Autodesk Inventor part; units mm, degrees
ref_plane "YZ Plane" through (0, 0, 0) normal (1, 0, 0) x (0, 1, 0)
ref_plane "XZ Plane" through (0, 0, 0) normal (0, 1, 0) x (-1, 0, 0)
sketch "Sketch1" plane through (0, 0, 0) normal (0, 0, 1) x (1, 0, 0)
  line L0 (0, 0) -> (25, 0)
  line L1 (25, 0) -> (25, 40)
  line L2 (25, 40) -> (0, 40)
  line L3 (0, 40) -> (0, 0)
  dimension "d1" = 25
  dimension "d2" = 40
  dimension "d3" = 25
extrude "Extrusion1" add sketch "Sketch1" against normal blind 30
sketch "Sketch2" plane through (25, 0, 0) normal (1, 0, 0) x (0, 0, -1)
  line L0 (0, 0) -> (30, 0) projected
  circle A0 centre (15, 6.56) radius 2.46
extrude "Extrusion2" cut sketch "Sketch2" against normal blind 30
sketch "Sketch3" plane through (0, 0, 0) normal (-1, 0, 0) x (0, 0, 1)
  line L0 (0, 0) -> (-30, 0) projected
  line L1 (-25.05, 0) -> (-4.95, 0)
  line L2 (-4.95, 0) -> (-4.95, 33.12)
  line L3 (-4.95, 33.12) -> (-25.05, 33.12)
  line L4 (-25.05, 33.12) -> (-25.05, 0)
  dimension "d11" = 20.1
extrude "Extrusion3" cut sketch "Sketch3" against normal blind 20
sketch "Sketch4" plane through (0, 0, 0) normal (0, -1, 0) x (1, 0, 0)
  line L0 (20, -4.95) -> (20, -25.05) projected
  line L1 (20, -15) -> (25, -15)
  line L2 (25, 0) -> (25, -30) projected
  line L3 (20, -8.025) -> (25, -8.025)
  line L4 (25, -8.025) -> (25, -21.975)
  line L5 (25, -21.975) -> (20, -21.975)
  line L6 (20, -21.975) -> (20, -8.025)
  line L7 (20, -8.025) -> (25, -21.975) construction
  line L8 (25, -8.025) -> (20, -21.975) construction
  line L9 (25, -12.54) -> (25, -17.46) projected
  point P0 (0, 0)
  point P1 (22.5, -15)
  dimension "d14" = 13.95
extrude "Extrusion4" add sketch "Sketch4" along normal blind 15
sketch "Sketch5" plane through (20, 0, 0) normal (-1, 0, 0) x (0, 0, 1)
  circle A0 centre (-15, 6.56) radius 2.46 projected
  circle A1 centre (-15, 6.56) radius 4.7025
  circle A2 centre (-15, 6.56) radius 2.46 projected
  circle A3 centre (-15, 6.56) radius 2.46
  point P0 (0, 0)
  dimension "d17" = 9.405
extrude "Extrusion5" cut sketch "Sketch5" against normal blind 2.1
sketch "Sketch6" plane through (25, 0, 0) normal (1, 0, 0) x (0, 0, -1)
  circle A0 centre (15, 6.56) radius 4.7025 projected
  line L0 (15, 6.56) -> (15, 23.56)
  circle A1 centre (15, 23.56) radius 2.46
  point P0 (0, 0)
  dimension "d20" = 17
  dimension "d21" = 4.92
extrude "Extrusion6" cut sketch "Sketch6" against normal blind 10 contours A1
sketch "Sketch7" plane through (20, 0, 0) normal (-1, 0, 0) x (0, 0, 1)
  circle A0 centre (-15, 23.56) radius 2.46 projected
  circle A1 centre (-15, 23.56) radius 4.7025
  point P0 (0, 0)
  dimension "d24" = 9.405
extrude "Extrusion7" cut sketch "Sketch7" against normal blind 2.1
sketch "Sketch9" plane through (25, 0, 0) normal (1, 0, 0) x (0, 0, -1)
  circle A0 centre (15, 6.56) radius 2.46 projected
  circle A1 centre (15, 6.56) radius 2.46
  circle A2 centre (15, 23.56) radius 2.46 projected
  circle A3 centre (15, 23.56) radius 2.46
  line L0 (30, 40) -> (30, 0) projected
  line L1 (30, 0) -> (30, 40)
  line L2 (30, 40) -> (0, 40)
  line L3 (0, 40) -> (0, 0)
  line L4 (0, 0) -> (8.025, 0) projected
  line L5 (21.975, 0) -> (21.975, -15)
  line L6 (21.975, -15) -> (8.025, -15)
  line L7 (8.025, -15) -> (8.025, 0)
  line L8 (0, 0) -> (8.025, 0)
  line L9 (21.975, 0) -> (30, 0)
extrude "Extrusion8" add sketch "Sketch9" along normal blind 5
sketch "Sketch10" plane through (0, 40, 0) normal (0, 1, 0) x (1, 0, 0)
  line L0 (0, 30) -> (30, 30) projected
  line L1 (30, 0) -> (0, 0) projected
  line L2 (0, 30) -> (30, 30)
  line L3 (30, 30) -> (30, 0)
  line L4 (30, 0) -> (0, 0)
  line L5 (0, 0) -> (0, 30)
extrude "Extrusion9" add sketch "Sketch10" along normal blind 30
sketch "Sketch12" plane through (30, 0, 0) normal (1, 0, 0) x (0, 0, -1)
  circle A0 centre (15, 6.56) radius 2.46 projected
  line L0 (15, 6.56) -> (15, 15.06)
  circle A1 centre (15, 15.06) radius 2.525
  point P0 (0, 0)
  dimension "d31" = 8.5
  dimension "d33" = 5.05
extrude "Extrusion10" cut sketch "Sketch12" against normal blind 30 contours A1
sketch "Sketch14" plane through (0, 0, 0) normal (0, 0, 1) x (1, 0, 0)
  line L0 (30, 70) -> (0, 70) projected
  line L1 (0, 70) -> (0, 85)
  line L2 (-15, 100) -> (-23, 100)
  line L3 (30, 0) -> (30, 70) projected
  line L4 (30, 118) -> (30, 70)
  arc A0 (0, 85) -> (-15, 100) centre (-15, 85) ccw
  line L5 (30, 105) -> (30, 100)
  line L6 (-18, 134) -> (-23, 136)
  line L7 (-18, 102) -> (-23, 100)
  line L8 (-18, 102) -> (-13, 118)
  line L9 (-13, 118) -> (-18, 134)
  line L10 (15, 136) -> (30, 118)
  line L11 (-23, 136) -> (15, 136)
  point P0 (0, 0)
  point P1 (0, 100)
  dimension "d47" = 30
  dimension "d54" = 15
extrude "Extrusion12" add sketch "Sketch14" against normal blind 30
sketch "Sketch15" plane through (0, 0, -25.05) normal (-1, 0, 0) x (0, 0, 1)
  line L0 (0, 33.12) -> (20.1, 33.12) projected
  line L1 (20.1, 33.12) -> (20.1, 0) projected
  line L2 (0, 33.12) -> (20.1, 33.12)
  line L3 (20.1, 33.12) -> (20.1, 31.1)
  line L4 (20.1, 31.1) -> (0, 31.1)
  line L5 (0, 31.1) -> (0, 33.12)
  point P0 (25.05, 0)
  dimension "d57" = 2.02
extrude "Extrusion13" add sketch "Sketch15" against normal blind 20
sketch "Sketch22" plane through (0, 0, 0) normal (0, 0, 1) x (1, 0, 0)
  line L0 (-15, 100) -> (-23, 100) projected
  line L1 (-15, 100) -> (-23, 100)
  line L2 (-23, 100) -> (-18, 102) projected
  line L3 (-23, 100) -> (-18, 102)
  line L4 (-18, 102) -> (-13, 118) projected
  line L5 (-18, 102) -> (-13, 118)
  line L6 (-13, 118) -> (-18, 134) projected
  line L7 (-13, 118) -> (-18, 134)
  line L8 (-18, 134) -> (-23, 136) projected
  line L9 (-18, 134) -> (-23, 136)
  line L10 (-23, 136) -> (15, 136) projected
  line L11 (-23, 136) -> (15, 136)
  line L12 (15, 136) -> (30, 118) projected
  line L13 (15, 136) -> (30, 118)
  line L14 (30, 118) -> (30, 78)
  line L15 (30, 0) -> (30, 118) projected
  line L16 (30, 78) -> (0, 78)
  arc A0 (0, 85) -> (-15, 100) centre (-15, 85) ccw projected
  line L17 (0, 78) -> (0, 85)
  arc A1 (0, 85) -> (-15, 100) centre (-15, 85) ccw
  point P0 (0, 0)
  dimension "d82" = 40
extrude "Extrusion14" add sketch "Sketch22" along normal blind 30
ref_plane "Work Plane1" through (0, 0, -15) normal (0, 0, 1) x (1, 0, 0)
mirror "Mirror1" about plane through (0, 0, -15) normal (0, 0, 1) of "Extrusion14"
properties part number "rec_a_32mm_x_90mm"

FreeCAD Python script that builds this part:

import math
import FreeCAD as App
import Part
import Sketcher
Q = App.Units.Quantity

doc = App.newDocument("Part")
body = doc.addObject("PartDesign::Body", "Body")

sketch1 = body.newObject("Sketcher::SketchObject", "Sketch")
sketch1.AttachmentSupport = (doc.getObject("XY_Plane"), [""])
sketch1.MapMode = "FlatFace"
sketch1.addGeometry([
    Part.LineSegment(App.Vector(0, 40, 0), App.Vector(0, 0, 0)),
    Part.LineSegment(App.Vector(0, 0, 0), App.Vector(25, 0, 0)),
    Part.LineSegment(App.Vector(25, 0, 0), App.Vector(25, 40, 0)),
    Part.LineSegment(App.Vector(25, 40, 0), App.Vector(0, 40, 0)),
], False)
sketch1.addConstraint([
    Sketcher.Constraint("Coincident", 0, 2, 1, 1),
    Sketcher.Constraint("Coincident", 1, 2, 2, 1),
    Sketcher.Constraint("Coincident", 2, 2, 3, 1),
    Sketcher.Constraint("Coincident", 3, 2, 0, 1),
    Sketcher.Constraint("Vertical", 0),
    Sketcher.Constraint("Horizontal", 1),
    Sketcher.Constraint("Vertical", 2),
    Sketcher.Constraint("Horizontal", 3),
    Sketcher.Constraint("Coincident", 0, 2, -1, 1),
    Sketcher.Constraint("DistanceX", 1, 1, 1, 2, Q("25 mm")),
    Sketcher.Constraint("DistanceY", 0, 2, 0, 1, Q("40 mm")),
])
pad1 = body.newObject("PartDesign::Pad", "Pad")
pad1.Profile = sketch1
pad1.Length = 30
pad1.Reversed = True

sketch2 = body.newObject("Sketcher::SketchObject", "Sketch001")
sketch2.AttachmentSupport = (doc.getObject("YZ_Plane"), [""])
sketch2.MapMode = "FlatFace"
sketch2.AttachmentOffset = App.Placement(App.Vector(0, 0, 25), App.Rotation())
sketch2.addGeometry(Part.Circle(App.Vector(6.6, -15, 0), App.Vector(0, 0, 1), 2.5), False)
sketch2.addConstraint([
    Sketcher.Constraint("Diameter", 0, Q("4.92 mm")),
    Sketcher.Constraint("DistanceY", 0, 3, -1, 1, Q("15 mm")),
    Sketcher.Constraint("DistanceX", -1, 1, 0, 3, Q("6.56 mm")),
])
pocket1 = body.newObject("PartDesign::Pocket", "Pocket")
pocket1.Profile = sketch2
pocket1.Length = 30

sketch3 = body.newObject("Sketcher::SketchObject", "Sketch002")
sketch3.AttachmentSupport = (doc.getObject("YZ_Plane"), [""])
sketch3.MapMode = "FlatFace"
sketch3.addGeometry([
    Part.LineSegment(App.Vector(0, -25, 0), App.Vector(0, -5, 0)),
    Part.LineSegment(App.Vector(0, -5, 0), App.Vector(33, -5, 0)),
    Part.LineSegment(App.Vector(33, -5, 0), App.Vector(33, -25, 0)),
    Part.LineSegment(App.Vector(33, -25, 0), App.Vector(0, -25, 0)),
], False)
sketch3.addConstraint([
    Sketcher.Constraint("Coincident", 0, 2, 1, 1),
    Sketcher.Constraint("Coincident", 1, 2, 2, 1),
    Sketcher.Constraint("Coincident", 2, 2, 3, 1),
    Sketcher.Constraint("Coincident", 3, 2, 0, 1),
    Sketcher.Constraint("Vertical", 0),
    Sketcher.Constraint("Horizontal", 1),
    Sketcher.Constraint("Vertical", 2),
    Sketcher.Constraint("Horizontal", 3),
    Sketcher.Constraint("PointOnObject", 0, 2, -2),
    Sketcher.Constraint("DistanceY", 0, 1, 0, 2, Q("20.1 mm")),
    Sketcher.Constraint("DistanceX", 1, 1, 1, 2, Q("33.12 mm")),
    Sketcher.Constraint("DistanceY", 0, 2, -1, 1, Q("4.95 mm")),
])
pocket2 = body.newObject("PartDesign::Pocket", "Pocket001")
pocket2.Profile = sketch3
pocket2.Length = 20
pocket2.Reversed = True

sketch4 = body.newObject("Sketcher::SketchObject", "Sketch003")
sketch4.AttachmentSupport = (doc.getObject("XZ_Plane"), [""])
sketch4.MapMode = "FlatFace"
sketch4.addGeometry([
    Part.LineSegment(App.Vector(25, -8, 0), App.Vector(20, -8, 0)),
    Part.LineSegment(App.Vector(20, -8, 0), App.Vector(20, -22, 0)),
    Part.LineSegment(App.Vector(20, -22, 0), App.Vector(25, -22, 0)),
    Part.LineSegment(App.Vector(25, -22, 0), App.Vector(25, -8, 0)),
], False)
sketch4.addConstraint([
    Sketcher.Constraint("Coincident", 0, 2, 1, 1),
    Sketcher.Constraint("Coincident", 1, 2, 2, 1),
    Sketcher.Constraint("Coincident", 2, 2, 3, 1),
    Sketcher.Constraint("Coincident", 3, 2, 0, 1),
    Sketcher.Constraint("Horizontal", 0),
    Sketcher.Constraint("Vertical", 1),
    Sketcher.Constraint("Horizontal", 2),
    Sketcher.Constraint("Vertical", 3),
    Sketcher.Constraint("DistanceY", 1, 2, 1, 1, Q("13.95 mm")),
    Sketcher.Constraint("DistanceX", 0, 2, 0, 1, Q("5 mm")),
    Sketcher.Constraint("DistanceX", -1, 1, 0, 2, Q("20 mm")),
    Sketcher.Constraint("DistanceY", 0, 2, -1, 1, Q("8.025 mm")),
])
pad2 = body.newObject("PartDesign::Pad", "Pad001")
pad2.Profile = sketch4
pad2.Length = 15

sketch5 = body.newObject("Sketcher::SketchObject", "Sketch004")
sketch5.AttachmentSupport = (doc.getObject("YZ_Plane"), [""])
sketch5.MapMode = "FlatFace"
sketch5.AttachmentOffset = App.Placement(App.Vector(0, 0, 20), App.Rotation())
sketch5.addGeometry([
    Part.Circle(App.Vector(6.6, -15, 0), App.Vector(0, 0, 1), 4.7),
    Part.Circle(App.Vector(6.6, -15, 0), App.Vector(0, 0, 1), 2.5),
], False)
sketch5.addConstraint([
    Sketcher.Constraint("Coincident", 1, 3, 0, 3),
    Sketcher.Constraint("Diameter", 0, Q("9.405 mm")),
    Sketcher.Constraint("Diameter", 1, Q("4.92 mm")),
    Sketcher.Constraint("DistanceY", 0, 3, -1, 1, Q("15 mm")),
    Sketcher.Constraint("DistanceX", -1, 1, 0, 3, Q("6.56 mm")),
])
pocket3 = body.newObject("PartDesign::Pocket", "Pocket002")
pocket3.Profile = sketch5
pocket3.Length = 2.1
pocket3.Reversed = True

sketch6 = body.newObject("Sketcher::SketchObject", "Sketch005")
sketch6.AttachmentSupport = (doc.getObject("YZ_Plane"), [""])
sketch6.MapMode = "FlatFace"
sketch6.AttachmentOffset = App.Placement(App.Vector(0, 0, 25), App.Rotation())
sketch6.addGeometry(Part.Circle(App.Vector(23.6, -15, 0), App.Vector(0, 0, 1), 2.5), False)
sketch6.addConstraint([
    Sketcher.Constraint("Diameter", 0, Q("4.92 mm")),
    Sketcher.Constraint("DistanceY", 0, 3, -1, 1, Q("15 mm")),
    Sketcher.Constraint("DistanceX", -1, 1, 0, 3, Q("23.56 mm")),
])
pocket4 = body.newObject("PartDesign::Pocket", "Pocket003")
pocket4.Profile = sketch6
pocket4.Length = 10

sketch7 = body.newObject("Sketcher::SketchObject", "Sketch006")
sketch7.AttachmentSupport = (doc.getObject("YZ_Plane"), [""])
sketch7.MapMode = "FlatFace"
sketch7.AttachmentOffset = App.Placement(App.Vector(0, 0, 20), App.Rotation())
sketch7.addGeometry([
    Part.Circle(App.Vector(23.6, -15, 0), App.Vector(0, 0, 1), 4.7),
    Part.Circle(App.Vector(23.6, -15, 0), App.Vector(0, 0, 1), 2.5),
], False)
sketch7.addConstraint([
    Sketcher.Constraint("Coincident", 1, 3, 0, 3),
    Sketcher.Constraint("Diameter", 0, Q("9.405 mm")),
    Sketcher.Constraint("Diameter", 1, Q("4.92 mm")),
    Sketcher.Constraint("DistanceY", 0, 3, -1, 1, Q("15 mm")),
    Sketcher.Constraint("DistanceX", -1, 1, 0, 3, Q("23.56 mm")),
])
pocket5 = body.newObject("PartDesign::Pocket", "Pocket004")
pocket5.Profile = sketch7
pocket5.Length = 2.1
pocket5.Reversed = True

sketch8 = body.newObject("Sketcher::SketchObject", "Sketch007")
sketch8.AttachmentSupport = (doc.getObject("YZ_Plane"), [""])
sketch8.MapMode = "FlatFace"
sketch8.AttachmentOffset = App.Placement(App.Vector(0, 0, 25), App.Rotation())
sketch8.addGeometry([
    Part.LineSegment(App.Vector(0, -30, 0), App.Vector(40, -30, 0)),
    Part.LineSegment(App.Vector(40, -30, 0), App.Vector(40, 0, 0)),
    Part.LineSegment(App.Vector(40, 0, 0), App.Vector(0, 0, 0)),
    Part.LineSegment(App.Vector(0, 0, 0), App.Vector(0, -8, 0)),
    Part.LineSegment(App.Vector(0, -8, 0), App.Vector(-15, -8, 0)),
    Part.LineSegment(App.Vector(-15, -8, 0), App.Vector(-15, -22, 0)),
    Part.LineSegment(App.Vector(-15, -22, 0), App.Vector(0, -22, 0)),
    Part.LineSegment(App.Vector(0, -22, 0), App.Vector(0, -30, 0)),
    Part.Circle(App.Vector(6.6, -15, 0), App.Vector(0, 0, 1), 2.5),
    Part.Circle(App.Vector(23.6, -15, 0), App.Vector(0, 0, 1), 2.5),
], False)
sketch8.addConstraint([
    Sketcher.Constraint("Coincident", 0, 2, 1, 1),
    Sketcher.Constraint("Coincident", 1, 2, 2, 1),
    Sketcher.Constraint("Coincident", 2, 2, 3, 1),
    Sketcher.Constraint("Coincident", 3, 2, 4, 1),
    Sketcher.Constraint("Coincident", 4, 2, 5, 1),
    Sketcher.Constraint("Coincident", 5, 2, 6, 1),
    Sketcher.Constraint("Coincident", 6, 2, 7, 1),
    Sketcher.Constraint("Coincident", 7, 2, 0, 1),
    Sketcher.Constraint("Horizontal", 0),
    Sketcher.Constraint("Vertical", 1),
    Sketcher.Constraint("Horizontal", 2),
    Sketcher.Constraint("Vertical", 3),
    Sketcher.Constraint("Horizontal", 4),
    Sketcher.Constraint("Vertical", 5),
    Sketcher.Constraint("Horizontal", 6),
    Sketcher.Constraint("Vertical", 7),
    Sketcher.Constraint("Coincident", 2, 2, -1, 1),
    Sketcher.Constraint("Equal", 8, 9),
    Sketcher.Constraint("PointOnObject", 6, 2, -2),
    Sketcher.Constraint("Horizontal", 8, 3, 9, 3),
    Sketcher.Constraint("Equal", 3, 7),
    Sketcher.Constraint("Diameter", 8, Q("4.92 mm")),
    Sketcher.Constraint("DistanceX", 0, 1, 0, 2, Q("40 mm")),
    Sketcher.Constraint("DistanceX", 4, 2, 4, 1, Q("15 mm")),
    Sketcher.Constraint("DistanceY", 1, 1, 1, 2, Q("30 mm")),
    Sketcher.Constraint("DistanceY", 8, 3, -1, 1, Q("15 mm")),
    Sketcher.Constraint("DistanceX", 8, 3, 9, 3, Q("17 mm")),
    Sketcher.Constraint("DistanceY", 5, 2, 5, 1, Q("13.95 mm")),
    Sketcher.Constraint("DistanceX", -1, 1, 8, 3, Q("6.56 mm")),
])
pad3 = body.newObject("PartDesign::Pad", "Pad002")
pad3.Profile = sketch8
pad3.Length = 5

sketch9 = body.newObject("Sketcher::SketchObject", "Sketch008")
sketch9.AttachmentSupport = (doc.getObject("XZ_Plane"), [""])
sketch9.MapMode = "FlatFace"
sketch9.AttachmentOffset = App.Placement(App.Vector(0, 0, -40), App.Rotation())
sketch9.addGeometry([
    Part.LineSegment(App.Vector(30, -30, 0), App.Vector(0, -30, 0)),
    Part.LineSegment(App.Vector(0, -30, 0), App.Vector(0, 0, 0)),
    Part.LineSegment(App.Vector(0, 0, 0), App.Vector(30, 0, 0)),
    Part.LineSegment(App.Vector(30, 0, 0), App.Vector(30, -30, 0)),
], False)
sketch9.addConstraint([
    Sketcher.Constraint("Coincident", 0, 2, 1, 1),
    Sketcher.Constraint("Coincident", 1, 2, 2, 1),
    Sketcher.Constraint("Coincident", 2, 2, 3, 1),
    Sketcher.Constraint("Coincident", 3, 2, 0, 1),
    Sketcher.Constraint("Horizontal", 0),
    Sketcher.Constraint("Vertical", 1),
    Sketcher.Constraint("Horizontal", 2),
    Sketcher.Constraint("Vertical", 3),
    Sketcher.Constraint("Coincident", 1, 2, -1, 1),
    Sketcher.Constraint("Equal", 2, 1),
    Sketcher.Constraint("DistanceX", 0, 2, 0, 1, Q("30 mm")),
])
pad4 = body.newObject("PartDesign::Pad", "Pad003")
pad4.Profile = sketch9
pad4.Length = 30
pad4.Reversed = True

sketch10 = body.newObject("Sketcher::SketchObject", "Sketch009")
sketch10.AttachmentSupport = (doc.getObject("YZ_Plane"), [""])
sketch10.MapMode = "FlatFace"
sketch10.AttachmentOffset = App.Placement(App.Vector(0, 0, 30), App.Rotation())
sketch10.addGeometry(Part.Circle(App.Vector(15.1, -15, 0), App.Vector(0, 0, 1), 2.5), False)
sketch10.addConstraint([
    Sketcher.Constraint("Diameter", 0, Q("5.05 mm")),
    Sketcher.Constraint("DistanceY", 0, 3, -1, 1, Q("15 mm")),
    Sketcher.Constraint("DistanceX", -1, 1, 0, 3, Q("15.06 mm")),
])
pocket6 = body.newObject("PartDesign::Pocket", "Pocket005")
pocket6.Profile = sketch10
pocket6.Length = 30

sketch11 = body.newObject("Sketcher::SketchObject", "Sketch010")
sketch11.AttachmentSupport = (doc.getObject("XY_Plane"), [""])
sketch11.MapMode = "FlatFace"
sketch11.addGeometry([
    Part.LineSegment(App.Vector(0, 70, 0), App.Vector(30, 70, 0)),
    Part.LineSegment(App.Vector(30, 70, 0), App.Vector(30, 118, 0)),
    Part.LineSegment(App.Vector(30, 118, 0), App.Vector(15, 136, 0)),
    Part.LineSegment(App.Vector(15, 136, 0), App.Vector(-23, 136, 0)),
    Part.LineSegment(App.Vector(-23, 136, 0), App.Vector(-18, 134, 0)),
    Part.LineSegment(App.Vector(-18, 134, 0), App.Vector(-13, 118, 0)),
    Part.LineSegment(App.Vector(-13, 118, 0), App.Vector(-18, 102, 0)),
    Part.LineSegment(App.Vector(-18, 102, 0), App.Vector(-23, 100, 0)),
    Part.LineSegment(App.Vector(-23, 100, 0), App.Vector(-15, 100, 0)),
    Part.ArcOfCircle(Part.Circle(App.Vector(-15, 85, 0), App.Vector(0, 0, 1), 15), math.radians(0), math.radians(90)),
    Part.LineSegment(App.Vector(0, 85, 0), App.Vector(0, 70, 0)),
], False)
sketch11.addConstraint([
    Sketcher.Constraint("Coincident", 0, 2, 1, 1),
    Sketcher.Constraint("Coincident", 1, 2, 2, 1),
    Sketcher.Constraint("Coincident", 2, 2, 3, 1),
    Sketcher.Constraint("Coincident", 3, 2, 4, 1),
    Sketcher.Constraint("Coincident", 4, 2, 5, 1),
    Sketcher.Constraint("Coincident", 5, 2, 6, 1),
    Sketcher.Constraint("Coincident", 6, 2, 7, 1),
    Sketcher.Constraint("Coincident", 7, 2, 8, 1),
    Sketcher.Constraint("Tangent", 8, 2, 9, 2),
    Sketcher.Constraint("Tangent", 9, 1, 10, 1),
    Sketcher.Constraint("Coincident", 10, 2, 0, 1),
    Sketcher.Constraint("Horizontal", 0),
    Sketcher.Constraint("Vertical", 1),
    Sketcher.Constraint("Horizontal", 3),
    Sketcher.Constraint("Horizontal", 8),
    Sketcher.Constraint("Vertical", 10),
    Sketcher.Constraint("PointOnObject", 9, 1, -2),
    Sketcher.Constraint("Horizontal", 1, 2, 5, 2),
    Sketcher.Constraint("Vertical", 4, 2, 6, 2),
    Sketcher.Constraint("Vertical", 3, 2, 7, 2),
    Sketcher.Constraint("Equal", 5, 6),
    Sketcher.Constraint("Equal", 4, 7),
    Sketcher.Constraint("Radius", 9, Q("15 mm")),
    Sketcher.Constraint("DistanceX", 0, 1, 0, 2, Q("30 mm")),
    Sketcher.Constraint("DistanceY", 10, 2, 10, 1, Q("15 mm")),
    Sketcher.Constraint("DistanceX", -1, 1, 2, 2, Q("15 mm")),
    Sketcher.Constraint("DistanceX", 3, 2, 3, 1, Q("38 mm")),
    Sketcher.Constraint("DistanceY", 1, 1, 1, 2, Q("48 mm")),
    Sketcher.Constraint("DistanceY", -1, 1, 9, 3, Q("85 mm")),
    Sketcher.Constraint("DistanceX", 4, 2, -1, 1, Q("18 mm")),
    Sketcher.Constraint("DistanceY", -1, 1, 4, 2, Q("134 mm")),
    Sketcher.Constraint("DistanceX", 5, 2, -1, 1, Q("13 mm")),
])
pad5 = body.newObject("PartDesign::Pad", "Pad004")
pad5.Profile = sketch11
pad5.Length = 30
pad5.Reversed = True

sketch12 = body.newObject("Sketcher::SketchObject", "Sketch011")
sketch12.AttachmentSupport = (doc.getObject("YZ_Plane"), [""])
sketch12.MapMode = "FlatFace"
sketch12.addGeometry([
    Part.LineSegment(App.Vector(33.1, -5, 0), App.Vector(33.1, -25.1, 0)),
    Part.LineSegment(App.Vector(33.1, -25.1, 0), App.Vector(31.1, -25.1, 0)),
    Part.LineSegment(App.Vector(31.1, -25.1, 0), App.Vector(31.1, -5, 0)),
    Part.LineSegment(App.Vector(31.1, -5, 0), App.Vector(33.1, -5, 0)),
], False)
sketch12.addConstraint([
    Sketcher.Constraint("Coincident", 0, 2, 1, 1),
    Sketcher.Constraint("Coincident", 1, 2, 2, 1),
    Sketcher.Constraint("Coincident", 2, 2, 3, 1),
    Sketcher.Constraint("Coincident", 3, 2, 0, 1),
    Sketcher.Constraint("Vertical", 0),
    Sketcher.Constraint("Horizontal", 1),
    Sketcher.Constraint("Vertical", 2),
    Sketcher.Constraint("Horizontal", 3),
    Sketcher.Constraint("DistanceX", 1, 2, 1, 1, Q("2.02 mm")),
    Sketcher.Constraint("DistanceY", 0, 2, 0, 1, Q("20.1 mm")),
    Sketcher.Constraint("DistanceX", -1, 1, 1, 2, Q("31.1 mm")),
    Sketcher.Constraint("DistanceY", 0, 2, -1, 1, Q("25.05 mm")),
])
pad6 = body.newObject("PartDesign::Pad", "Pad005")
pad6.Profile = sketch12
pad6.Length = 20

sketch13 = body.newObject("Sketcher::SketchObject", "Sketch012")
sketch13.AttachmentSupport = (doc.getObject("XY_Plane"), [""])
sketch13.MapMode = "FlatFace"
sketch13.addGeometry([
    Part.LineSegment(App.Vector(-23, 100, 0), App.Vector(-15, 100, 0)),
    Part.ArcOfCircle(Part.Circle(App.Vector(-15, 85, 0), App.Vector(0, 0, 1), 15), math.radians(0), math.radians(90)),
    Part.LineSegment(App.Vector(0, 85, 0), App.Vector(0, 78, 0)),
    Part.LineSegment(App.Vector(0, 78, 0), App.Vector(30, 78, 0)),
    Part.LineSegment(App.Vector(30, 78, 0), App.Vector(30, 118, 0)),
    Part.LineSegment(App.Vector(30, 118, 0), App.Vector(15, 136, 0)),
    Part.LineSegment(App.Vector(15, 136, 0), App.Vector(-23, 136, 0)),
    Part.LineSegment(App.Vector(-23, 136, 0), App.Vector(-18, 134, 0)),
    Part.LineSegment(App.Vector(-18, 134, 0), App.Vector(-13, 118, 0)),
    Part.LineSegment(App.Vector(-13, 118, 0), App.Vector(-18, 102, 0)),
    Part.LineSegment(App.Vector(-18, 102, 0), App.Vector(-23, 100, 0)),
], False)
sketch13.addConstraint([
    Sketcher.Constraint("Tangent", 0, 2, 1, 2),
    Sketcher.Constraint("Tangent", 1, 1, 2, 1),
    Sketcher.Constraint("Coincident", 2, 2, 3, 1),
    Sketcher.Constraint("Coincident", 3, 2, 4, 1),
    Sketcher.Constraint("Coincident", 4, 2, 5, 1),
    Sketcher.Constraint("Coincident", 5, 2, 6, 1),
    Sketcher.Constraint("Coincident", 6, 2, 7, 1),
    Sketcher.Constraint("Coincident", 7, 2, 8, 1),
    Sketcher.Constraint("Coincident", 8, 2, 9, 1),
    Sketcher.Constraint("Coincident", 9, 2, 10, 1),
    Sketcher.Constraint("Coincident", 10, 2, 0, 1),
    Sketcher.Constraint("Horizontal", 0),
    Sketcher.Constraint("Vertical", 2),
    Sketcher.Constraint("Horizontal", 3),
    Sketcher.Constraint("Vertical", 4),
    Sketcher.Constraint("Horizontal", 6),
    Sketcher.Constraint("PointOnObject", 1, 1, -2),
    Sketcher.Constraint("Horizontal", 4, 2, 8, 2),
    Sketcher.Constraint("Vertical", 7, 2, 9, 2),
    Sketcher.Constraint("Vertical", 6, 2, 10, 2),
    Sketcher.Constraint("Equal", 8, 9),
    Sketcher.Constraint("Equal", 7, 10),
    Sketcher.Constraint("DistanceY", 4, 1, 4, 2, Q("40 mm")),
    Sketcher.Constraint("Radius", 1, Q("15 mm")),
    Sketcher.Constraint("DistanceX", 0, 1, 0, 2, Q("8 mm")),
    Sketcher.Constraint("DistanceX", 3, 1, 3, 2, Q("30 mm")),
    Sketcher.Constraint("DistanceX", 6, 2, 6, 1, Q("38 mm")),
    Sketcher.Constraint("DistanceY", 2, 2, 2, 1, Q("7 mm")),
    Sketcher.Constraint("DistanceY", -1, 1, 1, 3, Q("85 mm")),
    Sketcher.Constraint("DistanceX", 7, 2, -1, 1, Q("18 mm")),
    Sketcher.Constraint("DistanceY", -1, 1, 7, 2, Q("134 mm")),
    Sketcher.Constraint("DistanceX", 8, 2, -1, 1, Q("13 mm")),
])
pad7 = body.newObject("PartDesign::Pad", "Pad006")
pad7.Profile = sketch13
pad7.Length = 30
doc.recompute()

datumplane = body.newObject("PartDesign::Plane", "DatumPlane")
datumplane.AttachmentSupport = (doc.getObject("XY_Plane"), [""])
datumplane.MapMode = "FlatFace"
datumplane.AttachmentOffset = App.Placement(App.Vector(0, 0, -15), App.Rotation())
mirrored = body.newObject("PartDesign::Mirrored", "Mirrored")
mirrored.Originals = [pad7]
mirrored.MirrorPlane = (datumplane, [""])
body.Tip = mirrored

doc.recompute()
